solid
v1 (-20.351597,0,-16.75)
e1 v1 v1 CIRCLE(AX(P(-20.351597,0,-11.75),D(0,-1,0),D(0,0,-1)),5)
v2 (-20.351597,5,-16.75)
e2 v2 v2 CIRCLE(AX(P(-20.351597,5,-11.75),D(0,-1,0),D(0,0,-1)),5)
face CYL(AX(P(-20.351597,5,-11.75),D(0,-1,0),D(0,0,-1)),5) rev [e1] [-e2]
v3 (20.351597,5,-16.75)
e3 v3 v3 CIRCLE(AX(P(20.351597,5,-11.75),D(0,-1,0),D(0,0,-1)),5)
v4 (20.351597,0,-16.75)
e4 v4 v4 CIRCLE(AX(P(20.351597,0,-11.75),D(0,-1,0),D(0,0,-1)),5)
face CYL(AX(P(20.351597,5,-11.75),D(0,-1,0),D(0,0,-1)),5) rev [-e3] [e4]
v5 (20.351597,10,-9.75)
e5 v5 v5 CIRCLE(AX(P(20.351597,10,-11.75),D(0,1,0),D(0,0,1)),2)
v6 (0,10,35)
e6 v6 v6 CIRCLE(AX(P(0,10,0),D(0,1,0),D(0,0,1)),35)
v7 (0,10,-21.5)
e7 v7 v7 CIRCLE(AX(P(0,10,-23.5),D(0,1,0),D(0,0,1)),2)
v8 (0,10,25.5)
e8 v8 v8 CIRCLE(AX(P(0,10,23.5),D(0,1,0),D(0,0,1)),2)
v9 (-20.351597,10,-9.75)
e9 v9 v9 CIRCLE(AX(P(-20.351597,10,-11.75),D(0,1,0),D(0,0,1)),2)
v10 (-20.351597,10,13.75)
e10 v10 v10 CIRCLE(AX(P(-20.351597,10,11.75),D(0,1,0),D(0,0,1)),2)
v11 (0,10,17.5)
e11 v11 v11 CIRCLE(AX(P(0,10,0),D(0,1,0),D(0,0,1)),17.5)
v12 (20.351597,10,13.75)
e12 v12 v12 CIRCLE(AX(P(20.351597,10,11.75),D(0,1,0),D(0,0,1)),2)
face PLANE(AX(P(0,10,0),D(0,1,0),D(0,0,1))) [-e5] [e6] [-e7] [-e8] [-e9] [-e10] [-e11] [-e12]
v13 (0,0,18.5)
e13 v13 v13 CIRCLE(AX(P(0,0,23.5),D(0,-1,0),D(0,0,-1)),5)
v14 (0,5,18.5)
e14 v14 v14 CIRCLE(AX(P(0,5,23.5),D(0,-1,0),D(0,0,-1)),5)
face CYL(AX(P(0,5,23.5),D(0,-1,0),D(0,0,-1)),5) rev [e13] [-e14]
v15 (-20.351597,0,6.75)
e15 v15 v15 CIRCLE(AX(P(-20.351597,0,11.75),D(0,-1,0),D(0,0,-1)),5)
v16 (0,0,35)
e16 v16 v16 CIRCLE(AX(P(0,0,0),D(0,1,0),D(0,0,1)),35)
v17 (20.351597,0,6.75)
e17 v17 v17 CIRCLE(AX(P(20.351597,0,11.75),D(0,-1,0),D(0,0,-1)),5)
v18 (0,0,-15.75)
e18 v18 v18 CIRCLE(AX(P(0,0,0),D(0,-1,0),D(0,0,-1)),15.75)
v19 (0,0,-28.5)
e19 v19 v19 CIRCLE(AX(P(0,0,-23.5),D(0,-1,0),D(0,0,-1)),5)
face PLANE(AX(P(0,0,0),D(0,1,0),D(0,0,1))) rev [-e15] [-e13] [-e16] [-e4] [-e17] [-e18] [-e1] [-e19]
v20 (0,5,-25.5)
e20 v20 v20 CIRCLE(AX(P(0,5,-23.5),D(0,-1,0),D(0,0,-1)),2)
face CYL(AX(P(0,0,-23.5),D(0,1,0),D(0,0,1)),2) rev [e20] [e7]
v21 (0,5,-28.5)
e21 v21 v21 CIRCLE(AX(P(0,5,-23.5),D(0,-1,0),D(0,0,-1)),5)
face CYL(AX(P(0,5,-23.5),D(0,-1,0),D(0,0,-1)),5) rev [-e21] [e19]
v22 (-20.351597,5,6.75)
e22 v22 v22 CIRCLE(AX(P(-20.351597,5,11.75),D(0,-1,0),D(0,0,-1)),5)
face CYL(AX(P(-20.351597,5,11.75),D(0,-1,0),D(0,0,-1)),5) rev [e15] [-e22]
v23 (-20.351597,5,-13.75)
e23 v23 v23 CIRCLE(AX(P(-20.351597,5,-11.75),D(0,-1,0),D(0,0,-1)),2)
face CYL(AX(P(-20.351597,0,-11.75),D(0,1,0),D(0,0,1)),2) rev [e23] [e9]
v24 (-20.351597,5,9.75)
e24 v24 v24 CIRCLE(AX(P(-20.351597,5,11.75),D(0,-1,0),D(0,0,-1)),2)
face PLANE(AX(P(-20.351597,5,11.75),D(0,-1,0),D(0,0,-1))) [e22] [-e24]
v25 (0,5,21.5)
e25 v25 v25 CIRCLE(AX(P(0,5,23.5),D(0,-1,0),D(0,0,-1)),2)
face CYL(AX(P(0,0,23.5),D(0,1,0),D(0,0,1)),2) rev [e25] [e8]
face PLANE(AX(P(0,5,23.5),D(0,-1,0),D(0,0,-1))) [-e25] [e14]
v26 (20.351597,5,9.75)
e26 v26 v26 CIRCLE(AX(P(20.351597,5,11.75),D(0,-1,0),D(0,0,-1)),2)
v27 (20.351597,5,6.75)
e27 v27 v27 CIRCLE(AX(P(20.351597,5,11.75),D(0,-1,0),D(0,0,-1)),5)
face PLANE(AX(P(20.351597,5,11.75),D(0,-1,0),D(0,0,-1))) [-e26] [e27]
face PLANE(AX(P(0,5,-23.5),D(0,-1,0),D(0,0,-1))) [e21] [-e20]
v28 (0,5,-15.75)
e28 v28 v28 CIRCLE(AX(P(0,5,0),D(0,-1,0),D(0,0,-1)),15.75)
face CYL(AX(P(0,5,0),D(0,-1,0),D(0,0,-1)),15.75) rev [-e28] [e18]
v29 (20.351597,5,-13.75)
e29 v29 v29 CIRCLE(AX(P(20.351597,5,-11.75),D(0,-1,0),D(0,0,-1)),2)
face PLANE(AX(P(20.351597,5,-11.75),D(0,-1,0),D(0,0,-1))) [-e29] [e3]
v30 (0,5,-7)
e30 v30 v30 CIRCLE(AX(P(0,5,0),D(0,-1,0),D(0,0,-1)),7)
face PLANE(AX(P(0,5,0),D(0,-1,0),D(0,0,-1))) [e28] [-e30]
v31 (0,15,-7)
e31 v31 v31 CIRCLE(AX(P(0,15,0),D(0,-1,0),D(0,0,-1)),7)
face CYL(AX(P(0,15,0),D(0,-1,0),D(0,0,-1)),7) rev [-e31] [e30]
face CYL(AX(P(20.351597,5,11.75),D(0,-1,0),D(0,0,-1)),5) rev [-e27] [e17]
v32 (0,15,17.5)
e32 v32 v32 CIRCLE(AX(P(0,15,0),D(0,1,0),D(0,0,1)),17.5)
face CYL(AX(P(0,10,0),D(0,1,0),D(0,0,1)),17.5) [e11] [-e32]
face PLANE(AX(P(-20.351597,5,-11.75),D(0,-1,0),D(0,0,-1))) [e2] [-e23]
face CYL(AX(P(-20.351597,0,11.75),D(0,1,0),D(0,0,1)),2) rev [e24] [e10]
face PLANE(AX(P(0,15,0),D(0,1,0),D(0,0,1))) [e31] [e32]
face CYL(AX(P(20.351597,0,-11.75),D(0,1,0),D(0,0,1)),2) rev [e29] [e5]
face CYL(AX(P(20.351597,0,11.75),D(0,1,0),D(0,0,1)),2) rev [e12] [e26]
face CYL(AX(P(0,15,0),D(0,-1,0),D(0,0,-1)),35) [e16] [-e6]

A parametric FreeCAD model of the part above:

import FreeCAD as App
import Part
import Sketcher
from FreeCAD import Vector

doc = App.newDocument("Part")
body = doc.addObject("PartDesign::Body", "Body")

sketch1 = body.newObject("Sketcher::SketchObject", "Sketch")
sketch1.AttachmentSupport = (doc.getObject("XZ_Plane"), [""])
sketch1.MapMode = "FlatFace"
sketch1.addGeometry(Part.Circle(Vector(0, 0, 0), Vector(0, 0, 1), 35), False)
sketch1.addConstraint(Sketcher.Constraint("Coincident", 0, 3, -1, 1))
sketch1.addConstraint(Sketcher.Constraint("Diameter", 0, 70.0))
pad1 = body.newObject("PartDesign::Pad", "Pad")
pad1.Profile = sketch1
pad1.Length = 15
pad1.Reversed = True

sketch2 = body.newObject("Sketcher::SketchObject", "Sketch001")
sketch2.AttachmentSupport = (doc.getObject("XZ_Plane"), [""])
sketch2.MapMode = "FlatFace"
sketch2.addGeometry(Part.Circle(Vector(0, 0, 0), Vector(0, 0, 1), 16), False)
sketch2.addConstraint(Sketcher.Constraint("Coincident", 0, 3, -1, 1))
sketch2.addConstraint(Sketcher.Constraint("Diameter", 0, 31.5))
pocket1 = body.newObject("PartDesign::Pocket", "Pocket")
pocket1.Profile = sketch2
pocket1.Length = 5

sketch3 = body.newObject("Sketcher::SketchObject", "Sketch002")
sketch3.AttachmentSupport = (doc.getObject("XZ_Plane"), [""])
sketch3.MapMode = "FlatFace"
sketch3.AttachmentOffset = App.Placement(Vector(0, 0, -5), App.Rotation())
sketch3.addGeometry(Part.Circle(Vector(0, 0, 0), Vector(0, 0, 1), 7), False)
sketch3.addConstraint(Sketcher.Constraint("Coincident", 0, 3, -1, 1))
sketch3.addConstraint(Sketcher.Constraint("Diameter", 0, 14.0))
pocket2 = body.newObject("PartDesign::Pocket", "Pocket001")
pocket2.Profile = sketch3
pocket2.Type = "ThroughAll"

sketch4 = body.newObject("Sketcher::SketchObject", "Sketch003")
sketch4.AttachmentSupport = (doc.getObject("XZ_Plane"), [""])
sketch4.MapMode = "FlatFace"
sketch4.AttachmentOffset = App.Placement(Vector(0, 0, -15), App.Rotation())
sketch4.addGeometry(Part.Circle(Vector(0, 0, 0), Vector(0, 0, 1), 35), False)
sketch4.addGeometry(Part.Circle(Vector(0, 0, 0), Vector(0, 0, 1), 18), False)
sketch4.addConstraint(Sketcher.Constraint("Coincident", 0, 3, -1, 1))
sketch4.addConstraint(Sketcher.Constraint("Coincident", 1, 3, -1, 1))
sketch4.addConstraint(Sketcher.Constraint("Diameter", 0, 70.0))
sketch4.addConstraint(Sketcher.Constraint("Diameter", 1, 35.0))
pocket3 = body.newObject("PartDesign::Pocket", "Pocket002")
pocket3.Profile = sketch4
pocket3.Length = 5
pocket3.Reversed = True

sketch5 = body.newObject("Sketcher::SketchObject", "Sketch004")
sketch5.AttachmentSupport = (doc.getObject("XZ_Plane"), [""])
sketch5.MapMode = "FlatFace"
sketch5.AttachmentOffset = App.Placement(Vector(0, 0, -10), App.Rotation())
sketch5.addGeometry(Part.Circle(Vector(0, -23.5, 0), Vector(0, 0, 1), 2), False)
sketch5.addGeometry(Part.Circle(Vector(20.4, -11.8, 0), Vector(0, 0, 1), 2), False)
sketch5.addGeometry(Part.Circle(Vector(20.4, 11.8, 0), Vector(0, 0, 1), 2), False)
sketch5.addGeometry(Part.Circle(Vector(0, 23.5, 0), Vector(0, 0, 1), 2), False)
sketch5.addGeometry(Part.Circle(Vector(-20.4, 11.8, 0), Vector(0, 0, 1), 2), False)
sketch5.addGeometry(Part.Circle(Vector(-20.4, -11.8, 0), Vector(0, 0, 1), 2), False)
sketch5.addConstraint(Sketcher.Constraint("Equal", 0, 1))
sketch5.addConstraint(Sketcher.Constraint("Equal", 1, 2))
sketch5.addConstraint(Sketcher.Constraint("Equal", 2, 3))
sketch5.addConstraint(Sketcher.Constraint("Equal", 3, 4))
sketch5.addConstraint(Sketcher.Constraint("Equal", 4, 5))
sketch5.addConstraint(Sketcher.Constraint("Symmetric", 0, 3, 3, 3, -1, 1))
sketch5.addConstraint(Sketcher.Constraint("Symmetric", 1, 3, 4, 3, -1, 1))
sketch5.addConstraint(Sketcher.Constraint("Symmetric", 2, 3, 5, 3, -1, 1))
sketch5.addConstraint(Sketcher.Constraint("Symmetric", 2, 3, 4, 3, -2))
sketch5.addConstraint(Sketcher.Constraint("PointOnObject", 0, 3, -2))
sketch5.addConstraint(Sketcher.Constraint("Diameter", 0, 4.0))
sketch5.addConstraint(Sketcher.Constraint("DistanceY", 0, 3, 3, 3, 47.0))
sketch5.addConstraint(Sketcher.Constraint("DistanceY", 1, 3, 2, 3, 23.5))
sketch5.addConstraint(Sketcher.Constraint("DistanceX", -1, 1, 1, 3, 20.351597))
pocket4 = body.newObject("PartDesign::Pocket", "Pocket003")
pocket4.Profile = sketch5
pocket4.Type = "ThroughAll"
pocket4.Reversed = True

sketch6 = body.newObject("Sketcher::SketchObject", "Sketch005")
sketch6.AttachmentSupport = (doc.getObject("XZ_Plane"), [""])
sketch6.MapMode = "FlatFace"
sketch6.addGeometry(Part.Circle(Vector(0, 23.5, 0), Vector(0, 0, 1), 5), False)
sketch6.addGeometry(Part.Circle(Vector(0, 23.5, 0), Vector(0, 0, 1), 2), False)
sketch6.addGeometry(Part.Circle(Vector(20.4, 11.8, 0), Vector(0, 0, 1), 5), False)
sketch6.addGeometry(Part.Circle(Vector(20.4, 11.8, 0), Vector(0, 0, 1), 2), False)
sketch6.addGeometry(Part.Circle(Vector(20.4, -11.8, 0), Vector(0, 0, 1), 5), False)
sketch6.addGeometry(Part.Circle(Vector(20.4, -11.8, 0), Vector(0, 0, 1), 2), False)
sketch6.addGeometry(Part.Circle(Vector(0, -23.5, 0), Vector(0, 0, 1), 5), False)
sketch6.addGeometry(Part.Circle(Vector(0, -23.5, 0), Vector(0, 0, 1), 2), False)
sketch6.addGeometry(Part.Circle(Vector(-20.4, -11.8, 0), Vector(0, 0, 1), 5), False)
sketch6.addGeometry(Part.Circle(Vector(-20.4, -11.8, 0), Vector(0, 0, 1), 2), False)
sketch6.addGeometry(Part.Circle(Vector(-20.4, 11.8, 0), Vector(0, 0, 1), 5), False)
sketch6.addGeometry(Part.Circle(Vector(-20.4, 11.8, 0), Vector(0, 0, 1), 2), False)
sketch6.addConstraint(Sketcher.Constraint("Coincident", 1, 3, 0, 3))
sketch6.addConstraint(Sketcher.Constraint("Coincident", 3, 3, 2, 3))
sketch6.addConstraint(Sketcher.Constraint("Coincident", 5, 3, 4, 3))
sketch6.addConstraint(Sketcher.Constraint("Coincident", 7, 3, 6, 3))
sketch6.addConstraint(Sketcher.Constraint("Coincident", 9, 3, 8, 3))
sketch6.addConstraint(Sketcher.Constraint("Coincident", 11, 3, 10, 3))
sketch6.addConstraint(Sketcher.Constraint("Equal", 0, 2))
sketch6.addConstraint(Sketcher.Constraint("Equal", 1, 3))
sketch6.addConstraint(Sketcher.Constraint("Equal", 2, 4))
sketch6.addConstraint(Sketcher.Constraint("Equal", 3, 5))
sketch6.addConstraint(Sketcher.Constraint("Equal", 4, 6))
sketch6.addConstraint(Sketcher.Constraint("Equal", 5, 7))
sketch6.addConstraint(Sketcher.Constraint("Equal", 6, 8))
sketch6.addConstraint(Sketcher.Constraint("Equal", 7, 9))
sketch6.addConstraint(Sketcher.Constraint("Equal", 8, 10))
sketch6.addConstraint(Sketcher.Constraint("Equal", 9, 11))
sketch6.addConstraint(Sketcher.Constraint("Symmetric", 0, 3, 6, 3, -1, 1))
sketch6.addConstraint(Sketcher.Constraint("Symmetric", 2, 3, 8, 3, -1, 1))
sketch6.addConstraint(Sketcher.Constraint("Symmetric", 4, 3, 10, 3, -1, 1))
sketch6.addConstraint(Sketcher.Constraint("Symmetric", 4, 3, 8, 3, -2))
sketch6.addConstraint(Sketcher.Constraint("PointOnObject", 0, 3, -2))
sketch6.addConstraint(Sketcher.Constraint("Diameter", 0, 10.0))
sketch6.addConstraint(Sketcher.Constraint("Diameter", 1, 4.0))
sketch6.addConstraint(Sketcher.Constraint("DistanceY", 6, 3, 0, 3, 47.0))
sketch6.addConstraint(Sketcher.Constraint("DistanceY", 4, 3, 2, 3, 23.5))
sketch6.addConstraint(Sketcher.Constraint("DistanceX", -1, 1, 2, 3, 20.351597))
pocket5 = body.newObject("PartDesign::Pocket", "Pocket004")
pocket5.Profile = sketch6
pocket5.Length = 5

doc.recompute()
